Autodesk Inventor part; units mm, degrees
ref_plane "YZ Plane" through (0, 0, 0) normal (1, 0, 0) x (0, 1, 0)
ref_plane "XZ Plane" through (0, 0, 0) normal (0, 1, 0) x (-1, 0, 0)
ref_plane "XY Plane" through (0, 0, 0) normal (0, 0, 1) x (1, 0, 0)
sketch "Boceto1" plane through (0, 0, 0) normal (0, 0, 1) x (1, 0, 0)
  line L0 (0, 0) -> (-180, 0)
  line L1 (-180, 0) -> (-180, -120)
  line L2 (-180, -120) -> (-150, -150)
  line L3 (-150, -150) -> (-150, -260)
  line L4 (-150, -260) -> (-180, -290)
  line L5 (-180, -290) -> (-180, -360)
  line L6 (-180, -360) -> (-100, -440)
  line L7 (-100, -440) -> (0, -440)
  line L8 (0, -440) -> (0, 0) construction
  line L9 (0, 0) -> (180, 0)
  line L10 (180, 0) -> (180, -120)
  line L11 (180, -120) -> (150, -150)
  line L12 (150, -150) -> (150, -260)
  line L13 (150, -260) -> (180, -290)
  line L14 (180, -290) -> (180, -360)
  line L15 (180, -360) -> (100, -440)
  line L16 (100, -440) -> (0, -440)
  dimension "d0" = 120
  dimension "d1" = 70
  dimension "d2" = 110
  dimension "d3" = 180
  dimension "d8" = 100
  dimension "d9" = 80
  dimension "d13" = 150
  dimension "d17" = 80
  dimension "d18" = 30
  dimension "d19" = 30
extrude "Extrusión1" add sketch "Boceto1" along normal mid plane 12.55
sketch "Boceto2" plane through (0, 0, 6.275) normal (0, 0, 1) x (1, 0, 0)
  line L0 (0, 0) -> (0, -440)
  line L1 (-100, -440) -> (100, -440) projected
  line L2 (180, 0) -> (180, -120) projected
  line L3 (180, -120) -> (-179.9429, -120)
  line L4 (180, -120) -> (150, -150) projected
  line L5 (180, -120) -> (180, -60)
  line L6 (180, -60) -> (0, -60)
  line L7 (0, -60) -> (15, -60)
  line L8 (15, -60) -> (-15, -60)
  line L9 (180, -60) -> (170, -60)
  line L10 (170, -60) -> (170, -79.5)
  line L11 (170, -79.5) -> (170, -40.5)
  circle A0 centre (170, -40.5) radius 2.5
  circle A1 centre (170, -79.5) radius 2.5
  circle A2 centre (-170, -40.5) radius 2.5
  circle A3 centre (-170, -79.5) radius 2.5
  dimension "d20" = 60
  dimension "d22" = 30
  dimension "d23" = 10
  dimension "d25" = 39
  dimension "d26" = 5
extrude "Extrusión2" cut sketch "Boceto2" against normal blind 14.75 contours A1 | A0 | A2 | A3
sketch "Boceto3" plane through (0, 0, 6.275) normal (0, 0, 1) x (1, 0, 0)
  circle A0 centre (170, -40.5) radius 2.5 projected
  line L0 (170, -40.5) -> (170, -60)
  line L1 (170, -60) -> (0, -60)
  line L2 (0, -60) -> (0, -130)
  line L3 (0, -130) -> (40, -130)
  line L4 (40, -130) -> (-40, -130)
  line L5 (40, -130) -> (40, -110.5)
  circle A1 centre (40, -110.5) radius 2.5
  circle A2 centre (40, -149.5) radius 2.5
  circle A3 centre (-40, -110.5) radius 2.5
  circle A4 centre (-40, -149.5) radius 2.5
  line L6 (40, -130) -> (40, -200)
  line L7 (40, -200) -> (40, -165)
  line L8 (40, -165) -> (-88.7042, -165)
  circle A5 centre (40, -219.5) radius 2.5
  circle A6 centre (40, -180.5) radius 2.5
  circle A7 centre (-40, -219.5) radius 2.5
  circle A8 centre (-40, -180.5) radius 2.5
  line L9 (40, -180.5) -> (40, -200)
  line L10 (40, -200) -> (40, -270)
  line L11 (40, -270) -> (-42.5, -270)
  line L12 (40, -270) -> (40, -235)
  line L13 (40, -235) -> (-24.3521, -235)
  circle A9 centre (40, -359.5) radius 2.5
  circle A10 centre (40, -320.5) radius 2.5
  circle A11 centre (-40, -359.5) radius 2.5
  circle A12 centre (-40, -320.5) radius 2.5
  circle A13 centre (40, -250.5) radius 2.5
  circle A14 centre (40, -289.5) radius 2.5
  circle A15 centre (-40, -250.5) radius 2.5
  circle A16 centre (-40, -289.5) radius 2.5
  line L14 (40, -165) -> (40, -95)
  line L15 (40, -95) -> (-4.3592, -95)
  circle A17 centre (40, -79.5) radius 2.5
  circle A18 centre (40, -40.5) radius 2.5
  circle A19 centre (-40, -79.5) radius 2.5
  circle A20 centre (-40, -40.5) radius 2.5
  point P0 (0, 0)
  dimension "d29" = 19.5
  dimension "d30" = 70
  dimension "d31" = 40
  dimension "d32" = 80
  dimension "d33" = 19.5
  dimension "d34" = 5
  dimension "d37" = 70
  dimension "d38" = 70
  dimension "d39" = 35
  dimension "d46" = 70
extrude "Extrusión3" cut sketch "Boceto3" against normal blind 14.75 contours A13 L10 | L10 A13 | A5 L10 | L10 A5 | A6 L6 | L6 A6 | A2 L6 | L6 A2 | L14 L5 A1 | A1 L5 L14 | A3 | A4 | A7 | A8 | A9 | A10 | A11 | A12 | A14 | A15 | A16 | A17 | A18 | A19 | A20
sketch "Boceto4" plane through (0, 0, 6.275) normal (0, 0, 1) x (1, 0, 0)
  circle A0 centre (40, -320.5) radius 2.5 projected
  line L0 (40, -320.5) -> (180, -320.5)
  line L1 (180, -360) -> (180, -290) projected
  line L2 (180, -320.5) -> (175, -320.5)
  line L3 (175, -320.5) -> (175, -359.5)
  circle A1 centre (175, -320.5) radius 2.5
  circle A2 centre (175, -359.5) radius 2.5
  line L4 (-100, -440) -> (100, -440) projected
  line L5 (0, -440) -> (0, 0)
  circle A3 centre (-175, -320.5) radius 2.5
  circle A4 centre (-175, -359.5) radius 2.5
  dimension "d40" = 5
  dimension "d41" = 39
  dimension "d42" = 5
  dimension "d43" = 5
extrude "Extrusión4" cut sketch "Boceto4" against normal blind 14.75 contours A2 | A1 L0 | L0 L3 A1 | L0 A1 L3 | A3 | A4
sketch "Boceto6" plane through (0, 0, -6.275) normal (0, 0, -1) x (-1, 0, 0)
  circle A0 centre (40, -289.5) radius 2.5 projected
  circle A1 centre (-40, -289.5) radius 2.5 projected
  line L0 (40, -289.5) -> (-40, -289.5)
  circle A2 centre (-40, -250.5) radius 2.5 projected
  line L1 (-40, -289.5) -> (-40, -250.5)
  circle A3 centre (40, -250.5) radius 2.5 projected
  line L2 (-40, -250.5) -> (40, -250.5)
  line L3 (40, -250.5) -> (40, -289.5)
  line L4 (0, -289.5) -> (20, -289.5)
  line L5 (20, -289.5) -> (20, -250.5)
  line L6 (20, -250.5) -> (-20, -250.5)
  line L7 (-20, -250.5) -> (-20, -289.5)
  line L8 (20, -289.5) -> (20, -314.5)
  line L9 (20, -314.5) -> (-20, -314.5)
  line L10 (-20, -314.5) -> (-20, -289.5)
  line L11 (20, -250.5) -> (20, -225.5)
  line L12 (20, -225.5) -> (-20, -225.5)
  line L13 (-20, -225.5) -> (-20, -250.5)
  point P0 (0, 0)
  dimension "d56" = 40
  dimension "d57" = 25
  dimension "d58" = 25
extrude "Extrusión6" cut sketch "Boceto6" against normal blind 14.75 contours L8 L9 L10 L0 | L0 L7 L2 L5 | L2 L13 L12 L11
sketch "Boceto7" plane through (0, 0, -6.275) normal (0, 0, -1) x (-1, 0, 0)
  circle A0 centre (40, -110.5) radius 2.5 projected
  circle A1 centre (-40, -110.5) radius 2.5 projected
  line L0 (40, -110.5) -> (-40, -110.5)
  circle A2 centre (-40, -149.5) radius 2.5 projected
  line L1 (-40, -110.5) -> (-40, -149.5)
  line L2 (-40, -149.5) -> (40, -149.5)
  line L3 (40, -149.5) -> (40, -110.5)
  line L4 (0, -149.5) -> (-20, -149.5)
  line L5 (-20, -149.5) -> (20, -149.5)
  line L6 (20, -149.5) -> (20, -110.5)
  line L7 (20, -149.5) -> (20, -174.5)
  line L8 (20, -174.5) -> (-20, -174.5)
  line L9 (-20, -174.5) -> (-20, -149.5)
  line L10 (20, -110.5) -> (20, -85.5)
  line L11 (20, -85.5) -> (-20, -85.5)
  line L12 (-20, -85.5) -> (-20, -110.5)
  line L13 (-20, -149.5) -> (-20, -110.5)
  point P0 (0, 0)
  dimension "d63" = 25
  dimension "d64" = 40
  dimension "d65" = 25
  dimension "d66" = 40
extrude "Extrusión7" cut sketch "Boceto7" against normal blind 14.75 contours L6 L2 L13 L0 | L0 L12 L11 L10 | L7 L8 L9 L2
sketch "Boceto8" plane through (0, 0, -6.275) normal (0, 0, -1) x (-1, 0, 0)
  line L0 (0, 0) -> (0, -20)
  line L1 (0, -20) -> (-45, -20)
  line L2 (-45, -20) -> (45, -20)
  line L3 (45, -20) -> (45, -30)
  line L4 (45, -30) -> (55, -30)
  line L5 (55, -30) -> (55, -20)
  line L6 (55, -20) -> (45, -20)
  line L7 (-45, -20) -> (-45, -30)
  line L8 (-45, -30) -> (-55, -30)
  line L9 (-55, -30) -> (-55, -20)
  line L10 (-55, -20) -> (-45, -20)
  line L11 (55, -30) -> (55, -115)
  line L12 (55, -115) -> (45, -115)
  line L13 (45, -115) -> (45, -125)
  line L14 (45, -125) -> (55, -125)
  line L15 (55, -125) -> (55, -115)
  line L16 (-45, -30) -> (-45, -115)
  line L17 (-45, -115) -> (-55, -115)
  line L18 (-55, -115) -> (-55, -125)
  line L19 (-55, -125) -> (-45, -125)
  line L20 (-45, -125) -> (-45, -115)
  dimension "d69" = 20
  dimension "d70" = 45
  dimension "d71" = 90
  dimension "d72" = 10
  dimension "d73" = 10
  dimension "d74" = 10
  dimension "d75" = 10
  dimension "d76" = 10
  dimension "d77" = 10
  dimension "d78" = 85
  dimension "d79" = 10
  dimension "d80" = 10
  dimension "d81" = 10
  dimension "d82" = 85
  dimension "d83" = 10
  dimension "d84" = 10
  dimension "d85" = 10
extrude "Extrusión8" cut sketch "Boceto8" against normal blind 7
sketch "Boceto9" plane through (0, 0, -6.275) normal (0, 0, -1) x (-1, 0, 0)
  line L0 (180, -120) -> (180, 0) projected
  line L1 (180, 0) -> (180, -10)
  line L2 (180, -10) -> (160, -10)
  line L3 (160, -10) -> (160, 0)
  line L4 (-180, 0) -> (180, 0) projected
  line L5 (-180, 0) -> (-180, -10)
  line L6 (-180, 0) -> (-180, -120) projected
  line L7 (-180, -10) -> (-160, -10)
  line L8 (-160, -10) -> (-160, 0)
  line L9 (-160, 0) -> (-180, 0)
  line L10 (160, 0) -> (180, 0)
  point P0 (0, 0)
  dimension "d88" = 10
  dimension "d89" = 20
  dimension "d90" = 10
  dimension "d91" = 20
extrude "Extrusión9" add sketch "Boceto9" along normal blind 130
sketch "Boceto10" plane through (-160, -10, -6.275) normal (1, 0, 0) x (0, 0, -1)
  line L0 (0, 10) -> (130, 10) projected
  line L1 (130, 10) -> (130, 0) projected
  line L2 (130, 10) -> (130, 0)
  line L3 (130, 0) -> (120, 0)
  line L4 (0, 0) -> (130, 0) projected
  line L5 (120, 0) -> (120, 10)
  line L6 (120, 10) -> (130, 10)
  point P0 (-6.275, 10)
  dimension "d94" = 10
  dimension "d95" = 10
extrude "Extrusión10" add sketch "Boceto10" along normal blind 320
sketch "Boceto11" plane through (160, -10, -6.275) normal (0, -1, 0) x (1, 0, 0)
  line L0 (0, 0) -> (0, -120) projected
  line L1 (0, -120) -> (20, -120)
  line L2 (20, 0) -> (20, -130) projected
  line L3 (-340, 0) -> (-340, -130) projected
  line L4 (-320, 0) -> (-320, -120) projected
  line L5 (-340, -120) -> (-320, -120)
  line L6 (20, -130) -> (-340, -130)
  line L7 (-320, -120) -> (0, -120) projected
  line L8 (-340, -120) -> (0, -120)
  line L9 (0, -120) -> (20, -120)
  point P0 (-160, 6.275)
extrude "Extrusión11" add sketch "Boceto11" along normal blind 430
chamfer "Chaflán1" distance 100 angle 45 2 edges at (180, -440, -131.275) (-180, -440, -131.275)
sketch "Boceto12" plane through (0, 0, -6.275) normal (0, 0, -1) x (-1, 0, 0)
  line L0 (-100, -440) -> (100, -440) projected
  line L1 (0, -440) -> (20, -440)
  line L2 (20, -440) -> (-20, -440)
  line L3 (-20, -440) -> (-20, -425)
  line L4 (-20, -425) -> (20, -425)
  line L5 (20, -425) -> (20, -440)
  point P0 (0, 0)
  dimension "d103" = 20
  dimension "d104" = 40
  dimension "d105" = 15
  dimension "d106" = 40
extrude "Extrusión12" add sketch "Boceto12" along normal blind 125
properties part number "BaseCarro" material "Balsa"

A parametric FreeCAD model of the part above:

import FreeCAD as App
import Part
import Sketcher
Q = App.Units.Quantity


def edges_at(feature, points):
    """Names of the edges that pass closest to the given points."""
    edges = feature.Shape.Edges
    near = lambda p: min(range(len(edges)), key=lambda i: edges[i].distToShape(Part.Vertex(*p))[0])
    return sorted({f"Edge{near(p) + 1}" for p in points})


def add_polygon(sketch, points):
    """Adds a closed chain of lines whose ends are joined by coincident constraints."""
    first, n = sketch.GeometryCount, len(points)
    for a, b in zip(points, points[1:] + points[:1]):
        sketch.addGeometry(Part.LineSegment(App.Vector(*a, 0), App.Vector(*b, 0)), False)
    for i in range(n):
        sketch.addConstraint(Sketcher.Constraint("Coincident", first + i, 2, first + (i + 1) % n, 1))

doc = App.newDocument("Part")
body = doc.addObject("PartDesign::Body", "Body")

# Sketch on XY plane
sketch1 = body.newObject("Sketcher::SketchObject", "Sketch")
sketch1.AttachmentSupport = (doc.getObject("XY_Plane"), [""])
sketch1.MapMode = "FlatFace"
add_polygon(sketch1, [(180, 0), (-180, 0), (-180, -120), (-150, -150), (-150, -260), (-180, -290), (-180, -360), (-100, -440), (100, -440), (180, -360), (180, -290), (150, -260), (150, -150), (180, -120)])  # lines 0-13
sketch1.addConstraint([
    Sketcher.Constraint("Horizontal", 0),
    Sketcher.Constraint("Vertical", 1),
    Sketcher.Constraint("Vertical", 3),
    Sketcher.Constraint("Vertical", 5),
    Sketcher.Constraint("Horizontal", 7),
    Sketcher.Constraint("Vertical", 9),
    Sketcher.Constraint("Vertical", 11),
    Sketcher.Constraint("Vertical", 13),
    Sketcher.Constraint("Symmetric", 0, 2, 13, 2, -1, 1),
    Sketcher.Constraint("Symmetric", 5, 2, 8, 2, -2),
    Sketcher.Constraint("Symmetric", 3, 2, 10, 2, -2),
    Sketcher.Constraint("Perpendicular", 2, 4),
    Sketcher.Constraint("Perpendicular", 4, 6),
    Sketcher.Constraint("Perpendicular", 6, 8),
    Sketcher.Constraint("Perpendicular", 8, 10),
    Sketcher.Constraint("Perpendicular", 10, 12),
    Sketcher.Constraint("Horizontal", 4, 2, 9, 2),
    Sketcher.Constraint("Horizontal", 2, 2, 11, 2),
    Sketcher.Constraint("Vertical", 1, 2, 4, 2),
    Sketcher.Constraint("DistanceY", 1, 2, 1, 1, Q("120 mm")),
    Sketcher.Constraint("DistanceY", 3, 2, 3, 1, Q("110 mm")),
    Sketcher.Constraint("DistanceY", 5, 2, 5, 1, Q("70 mm")),
    Sketcher.Constraint("DistanceX", 0, 2, -1, 1, Q("180 mm")),
    Sketcher.Constraint("DistanceX", 2, 2, -1, 1, Q("150 mm")),
    Sketcher.Constraint("DistanceX", 6, 2, -1, 1, Q("100 mm")),
])
pad1 = body.newObject("PartDesign::Pad", "Pad")
pad1.Profile = sketch1
pad1.Length = 12.55
pad1.Midplane = True

# Sketch on XY plane
sketch2 = body.newObject("Sketcher::SketchObject", "Sketch001")
sketch2.AttachmentSupport = (doc.getObject("XY_Plane"), [""])
sketch2.MapMode = "FlatFace"
sketch2.AttachmentOffset = App.Placement(App.Vector(0, 0, 6.275), App.Rotation())
sketch2.addGeometry([
    Part.Circle(App.Vector(170, -79.5, 0), App.Vector(0, 0, 1), 2.5),
    Part.Circle(App.Vector(170, -40.5, 0), App.Vector(0, 0, 1), 2.5),
    Part.Circle(App.Vector(-170, -40.5, 0), App.Vector(0, 0, 1), 2.5),
    Part.Circle(App.Vector(-170, -79.5, 0), App.Vector(0, 0, 1), 2.5),
], False)
sketch2.addConstraint([
    Sketcher.Constraint("Equal", 0, 1),
    Sketcher.Constraint("Equal", 1, 2),
    Sketcher.Constraint("Equal", 2, 3),
    Sketcher.Constraint("Symmetric", 1, 3, 2, 3, -2),
    Sketcher.Constraint("Symmetric", 0, 3, 3, 3, -2),
    Sketcher.Constraint("Vertical", 0, 3, 1, 3),
    Sketcher.Constraint("Diameter", 0, Q("5 mm")),
    Sketcher.Constraint("DistanceY", 0, 3, 1, 3, Q("39 mm")),
    Sketcher.Constraint("DistanceX", -1, 1, 0, 3, Q("170 mm")),
    Sketcher.Constraint("DistanceY", 0, 3, -1, 1, Q("79.5 mm")),
])
pocket1 = body.newObject("PartDesign::Pocket", "Pocket")
pocket1.Profile = sketch2
pocket1.Length = 14.75

# Sketch on XY plane
sketch3 = body.newObject("Sketcher::SketchObject", "Sketch002")
sketch3.AttachmentSupport = (doc.getObject("XY_Plane"), [""])
sketch3.MapMode = "FlatFace"
sketch3.AttachmentOffset = App.Placement(App.Vector(0, 0, 6.275), App.Rotation())
sketch3.addGeometry([
    Part.Circle(App.Vector(40, -250.5, 0), App.Vector(0, 0, 1), 2.5),  # 0
    Part.Circle(App.Vector(40, -219.5, 0), App.Vector(0, 0, 1), 2.5),  # 1
    Part.Circle(App.Vector(40, -180.5, 0), App.Vector(0, 0, 1), 2.5),  # 2
    Part.Circle(App.Vector(40, -149.5, 0), App.Vector(0, 0, 1), 2.5),  # 3
    Part.Circle(App.Vector(40, -110.5, 0), App.Vector(0, 0, 1), 2.5),  # 4
    Part.Circle(App.Vector(-40, -110.5, 0), App.Vector(0, 0, 1), 2.5),  # 5
    Part.Circle(App.Vector(-40, -149.5, 0), App.Vector(0, 0, 1), 2.5),  # 6
    Part.Circle(App.Vector(-40, -219.5, 0), App.Vector(0, 0, 1), 2.5),  # 7
    Part.Circle(App.Vector(-40, -180.5, 0), App.Vector(0, 0, 1), 2.5),  # 8
    Part.Circle(App.Vector(40, -359.5, 0), App.Vector(0, 0, 1), 2.5),  # 9
    Part.Circle(App.Vector(40, -320.5, 0), App.Vector(0, 0, 1), 2.5),  # 10
    Part.Circle(App.Vector(-40, -359.5, 0), App.Vector(0, 0, 1), 2.5),  # 11
    Part.Circle(App.Vector(-40, -320.5, 0), App.Vector(0, 0, 1), 2.5),  # 12
    Part.Circle(App.Vector(40, -289.5, 0), App.Vector(0, 0, 1), 2.5),  # 13
    Part.Circle(App.Vector(-40, -250.5, 0), App.Vector(0, 0, 1), 2.5),  # 14
    Part.Circle(App.Vector(-40, -289.5, 0), App.Vector(0, 0, 1), 2.5),  # 15
    Part.Circle(App.Vector(40, -79.5, 0), App.Vector(0, 0, 1), 2.5),  # 16
    Part.Circle(App.Vector(40, -40.5, 0), App.Vector(0, 0, 1), 2.5),  # 17
    Part.Circle(App.Vector(-40, -79.5, 0), App.Vector(0, 0, 1), 2.5),  # 18
    Part.Circle(App.Vector(-40, -40.5, 0), App.Vector(0, 0, 1), 2.5),  # 19
], False)
sketch3.addConstraint([
    Sketcher.Constraint("Equal", 0, 1),
    Sketcher.Constraint("Equal", 1, 2),
    Sketcher.Constraint("Equal", 2, 3),
    Sketcher.Constraint("Equal", 3, 4),
    Sketcher.Constraint("Equal", 4, 5),
    Sketcher.Constraint("Equal", 5, 6),
    Sketcher.Constraint("Equal", 6, 7),
    Sketcher.Constraint("Equal", 7, 8),
    Sketcher.Constraint("Equal", 8, 9),
    Sketcher.Constraint("Equal", 9, 10),
    Sketcher.Constraint("Equal", 10, 11),
    Sketcher.Constraint("Equal", 11, 12),
    Sketcher.Constraint("Equal", 12, 13),
    Sketcher.Constraint("Equal", 13, 14),
    Sketcher.Constraint("Equal", 14, 15),
    Sketcher.Constraint("Equal", 15, 16),
    Sketcher.Constraint("Equal", 16, 17),
    Sketcher.Constraint("Equal", 17, 18),
    Sketcher.Constraint("Equal", 18, 19),
    Sketcher.Constraint("Symmetric", 4, 3, 5, 3, -2),
    Sketcher.Constraint("Symmetric", 3, 3, 6, 3, -2),
    Sketcher.Constraint("Symmetric", 1, 3, 7, 3, -2),
    Sketcher.Constraint("Symmetric", 2, 3, 8, 3, -2),
    Sketcher.Constraint("Symmetric", 9, 3, 11, 3, -2),
    Sketcher.Constraint("Symmetric", 10, 3, 12, 3, -2),
    Sketcher.Constraint("Symmetric", 0, 3, 14, 3, -2),
    Sketcher.Constraint("Symmetric", 13, 3, 15, 3, -2),
    Sketcher.Constraint("Symmetric", 16, 3, 18, 3, -2),
    Sketcher.Constraint("Symmetric", 17, 3, 19, 3, -2),
    Sketcher.Constraint("Vertical", 0, 3, 1, 3),
    Sketcher.Constraint("Vertical", 1, 3, 2, 3),
    Sketcher.Constraint("Vertical", 2, 3, 3, 3),
    Sketcher.Constraint("Vertical", 3, 3, 4, 3),
    Sketcher.Constraint("Vertical", 4, 3, 9, 3),
    Sketcher.Constraint("Vertical", 9, 3, 10, 3),
    Sketcher.Constraint("Vertical", 10, 3, 13, 3),
    Sketcher.Constraint("Vertical", 13, 3, 16, 3),
    Sketcher.Constraint("Vertical", 16, 3, 17, 3),
    Sketcher.Constraint("Diameter", 0, Q("5 mm")),
    Sketcher.Constraint("DistanceX", -1, 1, 0, 3, Q("40 mm")),
    Sketcher.Constraint("DistanceY", 0, 3, 2, 3, Q("70 mm")),
    Sketcher.Constraint("DistanceY", 1, 3, 3, 3, Q("70 mm")),
    Sketcher.Constraint("DistanceY", 2, 3, 4, 3, Q("70 mm")),
    Sketcher.Constraint("DistanceY", 10, 3, 0, 3, Q("70 mm")),
    Sketcher.Constraint("DistanceY", 13, 3, 1, 3, Q("70 mm")),
    Sketcher.Constraint("DistanceY", 9, 3, 13, 3, Q("70 mm")),
    Sketcher.Constraint("DistanceY", 3, 3, 16, 3, Q("70 mm")),
    Sketcher.Constraint("DistanceY", 4, 3, 17, 3, Q("70 mm")),
    Sketcher.Constraint("DistanceY", 0, 3, 1, 3, Q("31 mm")),
    Sketcher.Constraint("DistanceY", 0, 3, -1, 1, Q("250.5 mm")),
])
pocket2 = body.newObject("PartDesign::Pocket", "Pocket001")
pocket2.Profile = sketch3
pocket2.Length = 14.75

# Sketch on XY plane
sketch4 = body.newObject("Sketcher::SketchObject", "Sketch003")
sketch4.AttachmentSupport = (doc.getObject("XY_Plane"), [""])
sketch4.MapMode = "FlatFace"
sketch4.AttachmentOffset = App.Placement(App.Vector(0, 0, 6.275), App.Rotation())
sketch4.addGeometry([
    Part.Circle(App.Vector(175, -359.5, 0), App.Vector(0, 0, 1), 2.5),
    Part.Circle(App.Vector(175, -320.5, 0), App.Vector(0, 0, 1), 2.5),
    Part.Circle(App.Vector(-175, -320.5, 0), App.Vector(0, 0, 1), 2.5),
    Part.Circle(App.Vector(-175, -359.5, 0), App.Vector(0, 0, 1), 2.5),
], False)
sketch4.addConstraint([
    Sketcher.Constraint("Equal", 0, 1),
    Sketcher.Constraint("Equal", 1, 2),
    Sketcher.Constraint("Equal", 2, 3),
    Sketcher.Constraint("Symmetric", 1, 3, 2, 3, -2),
    Sketcher.Constraint("Symmetric", 0, 3, 3, 3, -2),
    Sketcher.Constraint("Vertical", 0, 3, 1, 3),
    Sketcher.Constraint("Diameter", 0, Q("5 mm")),
    Sketcher.Constraint("DistanceY", 0, 3, 1, 3, Q("39 mm")),
    Sketcher.Constraint("DistanceX", -1, 1, 0, 3, Q("175 mm")),
    Sketcher.Constraint("DistanceY", 0, 3, -1, 1, Q("359.5 mm")),
])
pocket3 = body.newObject("PartDesign::Pocket", "Pocket002")
pocket3.Profile = sketch4
pocket3.Length = 14.75

# Sketch on XY plane
sketch5 = body.newObject("Sketcher::SketchObject", "Sketch004")
sketch5.AttachmentSupport = (doc.getObject("XY_Plane"), [""])
sketch5.MapMode = "FlatFace"
sketch5.AttachmentOffset = App.Placement(App.Vector(0, 0, -6.275), App.Rotation())
add_polygon(sketch5, [(-20, -314), (-20, -226), (20, -226), (20, -314)])  # lines 0-3
sketch5.addConstraint([
    Sketcher.Constraint("Vertical", 0),
    Sketcher.Constraint("Horizontal", 1),
    Sketcher.Constraint("Vertical", 2),
    Sketcher.Constraint("Horizontal", 3),
    Sketcher.Constraint("DistanceX", 1, 1, 1, 2, Q("40 mm")),
    Sketcher.Constraint("DistanceY", 0, 1, 0, 2, Q("89 mm")),
    Sketcher.Constraint("DistanceX", 0, 2, -1, 1, Q("20 mm")),
    Sketcher.Constraint("DistanceY", 0, 2, -1, 1, Q("225.5 mm")),
])
pocket4 = body.newObject("PartDesign::Pocket", "Pocket003")
pocket4.Profile = sketch5
pocket4.Length = 14.75
pocket4.Reversed = True

# Sketch on XY plane
sketch6 = body.newObject("Sketcher::SketchObject", "Sketch005")
sketch6.AttachmentSupport = (doc.getObject("XY_Plane"), [""])
sketch6.MapMode = "FlatFace"
sketch6.AttachmentOffset = App.Placement(App.Vector(0, 0, -6.275), App.Rotation())
add_polygon(sketch6, [(-20, -86), (20, -86), (20, -174), (-20, -174)])  # lines 0-3
sketch6.addConstraint([
    Sketcher.Constraint("Horizontal", 0),
    Sketcher.Constraint("Vertical", 1),
    Sketcher.Constraint("Horizontal", 2),
    Sketcher.Constraint("Vertical", 3),
    Sketcher.Constraint("DistanceX", 0, 1, 0, 2, Q("40 mm")),
    Sketcher.Constraint("DistanceY", 1, 2, 1, 1, Q("89 mm")),
    Sketcher.Constraint("DistanceX", -1, 1, 0, 2, Q("20 mm")),
    Sketcher.Constraint("DistanceY", 0, 2, -1, 1, Q("85.5 mm")),
])
pocket5 = body.newObject("PartDesign::Pocket", "Pocket004")
pocket5.Profile = sketch6
pocket5.Length = 14.75
pocket5.Reversed = True

# Sketch on XY plane
sketch7 = body.newObject("Sketcher::SketchObject", "Sketch006")
sketch7.AttachmentSupport = (doc.getObject("XY_Plane"), [""])
sketch7.MapMode = "FlatFace"
sketch7.AttachmentOffset = App.Placement(App.Vector(0, 0, -6.275), App.Rotation())
add_polygon(sketch7, [(45, -125), (45, -115), (55, -115), (55, -125)])  # lines 0-3
add_polygon(sketch7, [(45, -30), (45, -20), (55, -20), (55, -30)])  # lines 4-7
add_polygon(sketch7, [(-55, -125), (-55, -115), (-45, -115), (-45, -125)])  # lines 8-11
add_polygon(sketch7, [(-55, -20), (-45, -20), (-45, -30), (-55, -30)])  # lines 12-15
sketch7.addConstraint([
    Sketcher.Constraint("Vertical", 0),
    Sketcher.Constraint("Horizontal", 1),
    Sketcher.Constraint("Vertical", 2),
    Sketcher.Constraint("Horizontal", 3),
    Sketcher.Constraint("Vertical", 4),
    Sketcher.Constraint("Horizontal", 5),
    Sketcher.Constraint("Vertical", 6),
    Sketcher.Constraint("Horizontal", 7),
    Sketcher.Constraint("Vertical", 8),
    Sketcher.Constraint("Horizontal", 9),
    Sketcher.Constraint("Vertical", 10),
    Sketcher.Constraint("Horizontal", 11),
    Sketcher.Constraint("Horizontal", 12),
    Sketcher.Constraint("Vertical", 13),
    Sketcher.Constraint("Horizontal", 14),
    Sketcher.Constraint("Vertical", 15),
    Sketcher.Constraint("Symmetric", 1, 2, 8, 2, -2),
    Sketcher.Constraint("Symmetric", 3, 2, 10, 2, -2),
    Sketcher.Constraint("Symmetric", 4, 2, 12, 2, -2),
    Sketcher.Constraint("Symmetric", 6, 2, 14, 2, -2),
    Sketcher.Constraint("Vertical", 3, 2, 4, 2),
    Sketcher.Constraint("Vertical", 2, 2, 5, 2),
    Sketcher.Constraint("Equal", 14, 0),
    Sketcher.Constraint("Equal", 2, 4),
    Sketcher.Constraint("DistanceX", 1, 1, 1, 2, Q("10 mm")),
    Sketcher.Constraint("DistanceX", -1, 1, 0, 2, Q("45 mm")),
    Sketcher.Constraint("DistanceY", 4, 2, -1, 1, Q("20 mm")),
    Sketcher.Constraint("DistanceY", 1, 2, 6, 2, Q("85 mm")),
])
pocket6 = body.newObject("PartDesign::Pocket", "Pocket005")
pocket6.Profile = sketch7
pocket6.Length = 7
pocket6.Reversed = True

# Sketch on XY plane
sketch8 = body.newObject("Sketcher::SketchObject", "Sketch007")
sketch8.AttachmentSupport = (doc.getObject("XY_Plane"), [""])
sketch8.MapMode = "FlatFace"
sketch8.AttachmentOffset = App.Placement(App.Vector(0, 0, -6.275), App.Rotation())
add_polygon(sketch8, [(-160, -10), (-180, -10), (-180, 0), (-160, 0)])  # lines 0-3
add_polygon(sketch8, [(160, -10), (160, 0), (180, 0), (180, -10)])  # lines 4-7
sketch8.addConstraint([
    Sketcher.Constraint("Horizontal", 0),
    Sketcher.Constraint("Vertical", 1),
    Sketcher.Constraint("Horizontal", 2),
    Sketcher.Constraint("Vertical", 3),
    Sketcher.Constraint("Vertical", 4),
    Sketcher.Constraint("Horizontal", 5),
    Sketcher.Constraint("Vertical", 6),
    Sketcher.Constraint("Horizontal", 7),
    Sketcher.Constraint("Symmetric", 2, 2, 4, 2, -1, 1),
    Sketcher.Constraint("Symmetric", 1, 2, 5, 2, -2),
    Sketcher.Constraint("Horizontal", 3, 2, 6, 2),
    Sketcher.Constraint("DistanceX", 0, 2, 0, 1, Q("20 mm")),
    Sketcher.Constraint("DistanceY", 1, 1, 1, 2, Q("10 mm")),
    Sketcher.Constraint("DistanceX", 0, 2, -1, 1, Q("180 mm")),
])
pad2 = body.newObject("PartDesign::Pad", "Pad001")
pad2.Profile = sketch8
pad2.Length = 130
pad2.Reversed = True

# Sketch on YZ plane
sketch9 = body.newObject("Sketcher::SketchObject", "Sketch008")
sketch9.AttachmentSupport = (doc.getObject("YZ_Plane"), [""])
sketch9.MapMode = "FlatFace"
sketch9.AttachmentOffset = App.Placement(App.Vector(0, 0, -160), App.Rotation())
add_polygon(sketch9, [(0, -136), (0, -126), (-10, -126), (-10, -136)])  # lines 0-3
sketch9.addConstraint([
    Sketcher.Constraint("Vertical", 0),
    Sketcher.Constraint("Horizontal", 1),
    Sketcher.Constraint("Vertical", 2),
    Sketcher.Constraint("Horizontal", 3),
    Sketcher.Constraint("PointOnObject", 0, 2, -2),
    Sketcher.Constraint("Equal", 3, 0),
    Sketcher.Constraint("DistanceX", 1, 2, 1, 1, Q("10 mm")),
    Sketcher.Constraint("DistanceY", 0, 2, -1, 1, Q("126.275 mm")),
])
pad3 = body.newObject("PartDesign::Pad", "Pad002")
pad3.Profile = sketch9
pad3.Length = 320

# Sketch on XZ plane
sketch10 = body.newObject("Sketcher::SketchObject", "Sketch009")
sketch10.AttachmentSupport = (doc.getObject("XZ_Plane"), [""])
sketch10.MapMode = "FlatFace"
sketch10.AttachmentOffset = App.Placement(App.Vector(0, 0, 10), App.Rotation())
add_polygon(sketch10, [(180, -126), (-180, -126), (-180, -136), (180, -136)])  # lines 0-3
sketch10.addConstraint([
    Sketcher.Constraint("Horizontal", 0),
    Sketcher.Constraint("Vertical", 1),
    Sketcher.Constraint("Horizontal", 2),
    Sketcher.Constraint("Vertical", 3),
    Sketcher.Constraint("DistanceX", 0, 2, 0, 1, Q("360 mm")),
    Sketcher.Constraint("DistanceY", 1, 2, 1, 1, Q("10 mm")),
    Sketcher.Constraint("DistanceX", 0, 2, -1, 1, Q("180 mm")),
    Sketcher.Constraint("DistanceY", 0, 2, -1, 1, Q("126.275 mm")),
])
pad4 = body.newObject("PartDesign::Pad", "Pad003")
pad4.Profile = sketch10
pad4.Length = 430
doc.recompute()

chamfer = body.newObject("PartDesign::Chamfer", "Chamfer")
chamfer.Base = (pad4, edges_at(pad4, [(180, -440, -131.275), (-180, -440, -131.275)]))
chamfer.Size = 100

# Sketch on XY plane
sketch11 = body.newObject("Sketcher::SketchObject", "Sketch010")
sketch11.AttachmentSupport = (doc.getObject("XY_Plane"), [""])
sketch11.MapMode = "FlatFace"
sketch11.AttachmentOffset = App.Placement(App.Vector(0, 0, -6.275), App.Rotation())
add_polygon(sketch11, [(20, -425), (20, -440), (-20, -440), (-20, -425)])  # lines 0-3
sketch11.addConstraint([
    Sketcher.Constraint("Vertical", 0),
    Sketcher.Constraint("Horizontal", 1),
    Sketcher.Constraint("Vertical", 2),
    Sketcher.Constraint("Horizontal", 3),
    Sketcher.Constraint("DistanceX", 1, 2, 1, 1, Q("40 mm")),
    Sketcher.Constraint("DistanceY", 0, 2, 0, 1, Q("15 mm")),
    Sketcher.Constraint("DistanceX", -1, 1, 0, 2, Q("20 mm")),
    Sketcher.Constraint("DistanceY", 0, 2, -1, 1, Q("440 mm")),
])
pad5 = body.newObject("PartDesign::Pad", "Pad004")
pad5.Profile = sketch11
pad5.Length = 125
pad5.Reversed = True

doc.recompute()
